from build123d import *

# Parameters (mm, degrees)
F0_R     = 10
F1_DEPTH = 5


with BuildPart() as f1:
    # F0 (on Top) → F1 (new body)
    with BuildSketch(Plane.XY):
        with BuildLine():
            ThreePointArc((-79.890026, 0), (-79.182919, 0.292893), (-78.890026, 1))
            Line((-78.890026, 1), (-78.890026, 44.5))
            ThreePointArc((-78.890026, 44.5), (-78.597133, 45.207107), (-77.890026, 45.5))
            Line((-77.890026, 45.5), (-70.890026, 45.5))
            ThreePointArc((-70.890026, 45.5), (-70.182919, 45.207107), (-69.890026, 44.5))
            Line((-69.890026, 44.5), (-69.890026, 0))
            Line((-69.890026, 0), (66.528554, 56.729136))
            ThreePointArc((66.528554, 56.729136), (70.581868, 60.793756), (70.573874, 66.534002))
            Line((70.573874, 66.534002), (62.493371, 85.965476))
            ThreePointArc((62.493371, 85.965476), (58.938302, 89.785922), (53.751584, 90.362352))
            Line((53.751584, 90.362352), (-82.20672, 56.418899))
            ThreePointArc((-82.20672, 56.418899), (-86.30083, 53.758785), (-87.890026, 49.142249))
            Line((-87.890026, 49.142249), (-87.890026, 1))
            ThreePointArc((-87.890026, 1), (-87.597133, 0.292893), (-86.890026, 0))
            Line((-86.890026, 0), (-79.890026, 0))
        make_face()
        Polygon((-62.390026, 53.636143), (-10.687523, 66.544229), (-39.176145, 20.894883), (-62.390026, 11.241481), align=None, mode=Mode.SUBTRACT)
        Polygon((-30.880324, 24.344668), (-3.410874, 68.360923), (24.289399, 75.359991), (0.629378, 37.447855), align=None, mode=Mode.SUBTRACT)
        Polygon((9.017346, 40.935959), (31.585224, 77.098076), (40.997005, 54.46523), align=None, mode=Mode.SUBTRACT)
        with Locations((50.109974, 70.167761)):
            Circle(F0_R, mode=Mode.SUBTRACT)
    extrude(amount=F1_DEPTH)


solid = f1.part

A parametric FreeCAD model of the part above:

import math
import FreeCAD as App
import Part
import Sketcher
from FreeCAD import Vector
Q = App.Units.Quantity


def add_polygon(sketch, points):
    """Adds a closed chain of lines whose ends are joined by coincident constraints."""
    first, n = sketch.GeometryCount, len(points)
    for a, b in zip(points, points[1:] + points[:1]):
        sketch.addGeometry(Part.LineSegment(App.Vector(*a, 0), App.Vector(*b, 0)), False)
    for i in range(n):
        sketch.addConstraint(Sketcher.Constraint("Coincident", first + i, 2, first + (i + 1) % n, 1))

doc = App.newDocument("Part")
body = doc.addObject("PartDesign::Body", "Body")

# Sketch on XY plane
sketch1 = body.newObject("Sketcher::SketchObject", "Sketch")
sketch1.AttachmentSupport = (doc.getObject("XY_Plane"), [""])
sketch1.MapMode = "FlatFace"
sketch1.addGeometry(Part.ArcOfCircle(Part.Circle(Vector(-79.9, 1, 0), Vector(0, 0, 1), 1), math.radians(-90), math.radians(0)), False)  # 0
sketch1.addGeometry(Part.LineSegment(Vector(-78.9, 1, 0), Vector(-78.9, 44.5, 0)), False)  # 1
sketch1.addGeometry(Part.ArcOfCircle(Part.Circle(Vector(-77.9, 44.5, 0), Vector(0, 0, 1), 1), math.radians(90), math.radians(180)), False)  # 2
sketch1.addGeometry(Part.LineSegment(Vector(-77.9, 45.5, 0), Vector(-70.9, 45.5, 0)), False)  # 3
sketch1.addGeometry(Part.ArcOfCircle(Part.Circle(Vector(-70.9, 44.5, 0), Vector(0, 0, 1), 1), math.radians(0), math.radians(90)), False)  # 4
sketch1.addGeometry(Part.LineSegment(Vector(-69.9, 44.5, 0), Vector(-69.9, 0, 0)), False)  # 5
sketch1.addGeometry(Part.LineSegment(Vector(-69.9, 0, 0), Vector(66.5, 56.7, 0)), False)  # 6
sketch1.addGeometry(Part.ArcOfCircle(Part.Circle(Vector(63.6, 63.7, 0), Vector(0, 0, 1), 7.5), math.radians(-67), math.radians(23)), False)  # 7
sketch1.addGeometry(Part.LineSegment(Vector(70.6, 66.5, 0), Vector(62.5, 86, 0)), False)  # 8
sketch1.addGeometry(Part.ArcOfCircle(Part.Circle(Vector(55.6, 83.1, 0), Vector(0, 0, 1), 7.5), math.radians(23), math.radians(104)), False)  # 9
sketch1.addGeometry(Part.LineSegment(Vector(53.8, 90.4, 0), Vector(-82.2, 56.4, 0)), False)  # 10
sketch1.addGeometry(Part.ArcOfCircle(Part.Circle(Vector(-80.4, 49.1, 0), Vector(0, 0, 1), 7.5), math.radians(104), math.radians(180)), False)  # 11
sketch1.addGeometry(Part.LineSegment(Vector(-87.9, 49.1, 0), Vector(-87.9, 1, 0)), False)  # 12
sketch1.addGeometry(Part.ArcOfCircle(Part.Circle(Vector(-86.9, 1, 0), Vector(0, 0, 1), 1), math.radians(180), math.radians(270)), False)  # 13
sketch1.addGeometry(Part.LineSegment(Vector(-86.9, 0, 0), Vector(-79.9, 0, 0)), False)  # 14
add_polygon(sketch1, [(-62.4, 11.2), (-62.4, 53.6), (-10.7, 66.5), (-39.2, 20.9)])  # lines 15-18
add_polygon(sketch1, [(0.6, 37.4), (-30.9, 24.3), (-3.4, 68.4), (24.3, 75.4)])  # lines 19-22
add_polygon(sketch1, [(41, 54.5), (9, 40.9), (31.6, 77.1)])  # lines 23-25
sketch1.addGeometry(Part.Circle(Vector(50.1, 70.2, 0), Vector(0, 0, 1), 10), False)  # 26
sketch1.addConstraint(Sketcher.Constraint("Tangent", 0, 2, 1, 1))
sketch1.addConstraint(Sketcher.Constraint("Tangent", 1, 2, 2, 2))
sketch1.addConstraint(Sketcher.Constraint("Tangent", 2, 1, 3, 1))
sketch1.addConstraint(Sketcher.Constraint("Tangent", 3, 2, 4, 2))
sketch1.addConstraint(Sketcher.Constraint("Tangent", 4, 1, 5, 1))
sketch1.addConstraint(Sketcher.Constraint("Coincident", 5, 2, 6, 1))
sketch1.addConstraint(Sketcher.Constraint("Tangent", 6, 2, 7, 1))
sketch1.addConstraint(Sketcher.Constraint("Tangent", 7, 2, 8, 1))
sketch1.addConstraint(Sketcher.Constraint("Tangent", 8, 2, 9, 1))
sketch1.addConstraint(Sketcher.Constraint("Tangent", 9, 2, 10, 1))
sketch1.addConstraint(Sketcher.Constraint("Tangent", 10, 2, 11, 1))
sketch1.addConstraint(Sketcher.Constraint("Tangent", 11, 2, 12, 1))
sketch1.addConstraint(Sketcher.Constraint("Tangent", 12, 2, 13, 1))
sketch1.addConstraint(Sketcher.Constraint("Tangent", 13, 2, 14, 1))
sketch1.addConstraint(Sketcher.Constraint("Tangent", 14, 2, 0, 1))
sketch1.addConstraint(Sketcher.Constraint("Vertical", 1))
sketch1.addConstraint(Sketcher.Constraint("Horizontal", 3))
sketch1.addConstraint(Sketcher.Constraint("Vertical", 5))
sketch1.addConstraint(Sketcher.Constraint("Vertical", 12))
sketch1.addConstraint(Sketcher.Constraint("Horizontal", 14))
sketch1.addConstraint(Sketcher.Constraint("Vertical", 15))
sketch1.addConstraint(Sketcher.Constraint("Equal", 0, 2))
sketch1.addConstraint(Sketcher.Constraint("Equal", 2, 4))
sketch1.addConstraint(Sketcher.Constraint("Equal", 7, 9))
sketch1.addConstraint(Sketcher.Constraint("Equal", 9, 11))
sketch1.addConstraint(Sketcher.Constraint("Equal", 4, 13))
sketch1.addConstraint(Sketcher.Constraint("PointOnObject", 5, 2, -1))
sketch1.addConstraint(Sketcher.Constraint("PointOnObject", 13, 2, -1))
sketch1.addConstraint(Sketcher.Constraint("Perpendicular", 6, 8))
sketch1.addConstraint(Sketcher.Constraint("Parallel", 10, 16))
sketch1.addConstraint(Sketcher.Constraint("Perpendicular", 8, 18))
sketch1.addConstraint(Sketcher.Constraint("Parallel", 18, 19))
sketch1.addConstraint(Sketcher.Constraint("Parallel", 17, 20))
sketch1.addConstraint(Sketcher.Constraint("Parallel", 20, 22))
sketch1.addConstraint(Sketcher.Constraint("Parallel", 22, 24))
sketch1.addConstraint(Sketcher.Constraint("Perpendicular", 19, 25))
sketch1.addConstraint(Sketcher.Constraint("Equal", 3, 14))
sketch1.addConstraint(Sketcher.Constraint("Diameter", 26, Q("20 mm")))
sketch1.addConstraint(Sketcher.Constraint("Radius", 0, Q("0.999999 mm")))
sketch1.addConstraint(Sketcher.Constraint("Radius", 7, Q("7.500001 mm")))
sketch1.addConstraint(Sketcher.Constraint("DistanceX", 3, 1, 3, 2, Q("7 mm")))
sketch1.addConstraint(Sketcher.Constraint("DistanceY", 1, 1, 1, 2, Q("43.5 mm")))
sketch1.addConstraint(Sketcher.Constraint("DistanceX", 4, 3, 26, 3, Q("120.999999 mm")))
sketch1.addConstraint(Sketcher.Constraint("DistanceX", 3, 2, 15, 2, Q("8.5 mm")))
sketch1.addConstraint(Sketcher.Constraint("DistanceY", -1, 1, 7, 2, Q("66.534002 mm")))
sketch1.addConstraint(Sketcher.Constraint("DistanceY", 25, 2, 7, 3, Q("9.188999 mm")))
sketch1.addConstraint(Sketcher.Constraint("Distance", 20, Q("51.8845 mm")))
sketch1.addConstraint(Sketcher.Constraint("DistanceY", 12, 2, 12, 1, Q("48.142249 mm")))
sketch1.addConstraint(Sketcher.Constraint("DistanceY", 15, 1, 15, 2, Q("42.394662 mm")))
sketch1.addConstraint(Sketcher.Constraint("DistanceY", -1, 1, 9, 3, Q("83.085702 mm")))
sketch1.addConstraint(Sketcher.Constraint("DistanceX", -1, 1, 21, 2, Q("24.289399 mm")))
sketch1.addConstraint(Sketcher.Constraint("DistanceX", 26, 3, 7, 2, Q("20.4639 mm")))
sketch1.addConstraint(Sketcher.Constraint("DistanceX", 18, 2, 19, 2, Q("31.509702 mm")))
sketch1.addConstraint(Sketcher.Constraint("DistanceX", 16, 2, 22, 2, Q("11.316901 mm")))
sketch1.addConstraint(Sketcher.Constraint("DistanceY", 24, 2, 8, 2, Q("8.8674 mm")))
sketch1.addConstraint(Sketcher.Constraint("Distance", 16, Q("53.289469 mm")))
sketch1.addConstraint(Sketcher.Constraint("Distance", 17, Q("53.809519 mm")))
sketch1.addConstraint(Sketcher.Constraint("DistanceX", -1, 1, 7, 3, Q("63.64878 mm")))
sketch1.addConstraint(Sketcher.Constraint("DistanceY", -1, 1, 26, 3, Q("70.167761 mm")))
sketch1.addConstraint(Sketcher.Constraint("DistanceY", -1, 1, 16, 2, Q("66.544229 mm")))
sketch1.addConstraint(Sketcher.Constraint("DistanceY", -1, 1, 21, 2, Q("75.359991 mm")))
sketch1.addConstraint(Sketcher.Constraint("DistanceY", -1, 1, 23, 2, Q("40.935959 mm")))
sketch1.addConstraint(Sketcher.Constraint("DistanceX", 22, 2, 23, 2, Q("8.387968 mm")))
pad1 = body.newObject("PartDesign::Pad", "Pad")
pad1.Profile = sketch1
pad1.Length = 5

doc.recompute()
